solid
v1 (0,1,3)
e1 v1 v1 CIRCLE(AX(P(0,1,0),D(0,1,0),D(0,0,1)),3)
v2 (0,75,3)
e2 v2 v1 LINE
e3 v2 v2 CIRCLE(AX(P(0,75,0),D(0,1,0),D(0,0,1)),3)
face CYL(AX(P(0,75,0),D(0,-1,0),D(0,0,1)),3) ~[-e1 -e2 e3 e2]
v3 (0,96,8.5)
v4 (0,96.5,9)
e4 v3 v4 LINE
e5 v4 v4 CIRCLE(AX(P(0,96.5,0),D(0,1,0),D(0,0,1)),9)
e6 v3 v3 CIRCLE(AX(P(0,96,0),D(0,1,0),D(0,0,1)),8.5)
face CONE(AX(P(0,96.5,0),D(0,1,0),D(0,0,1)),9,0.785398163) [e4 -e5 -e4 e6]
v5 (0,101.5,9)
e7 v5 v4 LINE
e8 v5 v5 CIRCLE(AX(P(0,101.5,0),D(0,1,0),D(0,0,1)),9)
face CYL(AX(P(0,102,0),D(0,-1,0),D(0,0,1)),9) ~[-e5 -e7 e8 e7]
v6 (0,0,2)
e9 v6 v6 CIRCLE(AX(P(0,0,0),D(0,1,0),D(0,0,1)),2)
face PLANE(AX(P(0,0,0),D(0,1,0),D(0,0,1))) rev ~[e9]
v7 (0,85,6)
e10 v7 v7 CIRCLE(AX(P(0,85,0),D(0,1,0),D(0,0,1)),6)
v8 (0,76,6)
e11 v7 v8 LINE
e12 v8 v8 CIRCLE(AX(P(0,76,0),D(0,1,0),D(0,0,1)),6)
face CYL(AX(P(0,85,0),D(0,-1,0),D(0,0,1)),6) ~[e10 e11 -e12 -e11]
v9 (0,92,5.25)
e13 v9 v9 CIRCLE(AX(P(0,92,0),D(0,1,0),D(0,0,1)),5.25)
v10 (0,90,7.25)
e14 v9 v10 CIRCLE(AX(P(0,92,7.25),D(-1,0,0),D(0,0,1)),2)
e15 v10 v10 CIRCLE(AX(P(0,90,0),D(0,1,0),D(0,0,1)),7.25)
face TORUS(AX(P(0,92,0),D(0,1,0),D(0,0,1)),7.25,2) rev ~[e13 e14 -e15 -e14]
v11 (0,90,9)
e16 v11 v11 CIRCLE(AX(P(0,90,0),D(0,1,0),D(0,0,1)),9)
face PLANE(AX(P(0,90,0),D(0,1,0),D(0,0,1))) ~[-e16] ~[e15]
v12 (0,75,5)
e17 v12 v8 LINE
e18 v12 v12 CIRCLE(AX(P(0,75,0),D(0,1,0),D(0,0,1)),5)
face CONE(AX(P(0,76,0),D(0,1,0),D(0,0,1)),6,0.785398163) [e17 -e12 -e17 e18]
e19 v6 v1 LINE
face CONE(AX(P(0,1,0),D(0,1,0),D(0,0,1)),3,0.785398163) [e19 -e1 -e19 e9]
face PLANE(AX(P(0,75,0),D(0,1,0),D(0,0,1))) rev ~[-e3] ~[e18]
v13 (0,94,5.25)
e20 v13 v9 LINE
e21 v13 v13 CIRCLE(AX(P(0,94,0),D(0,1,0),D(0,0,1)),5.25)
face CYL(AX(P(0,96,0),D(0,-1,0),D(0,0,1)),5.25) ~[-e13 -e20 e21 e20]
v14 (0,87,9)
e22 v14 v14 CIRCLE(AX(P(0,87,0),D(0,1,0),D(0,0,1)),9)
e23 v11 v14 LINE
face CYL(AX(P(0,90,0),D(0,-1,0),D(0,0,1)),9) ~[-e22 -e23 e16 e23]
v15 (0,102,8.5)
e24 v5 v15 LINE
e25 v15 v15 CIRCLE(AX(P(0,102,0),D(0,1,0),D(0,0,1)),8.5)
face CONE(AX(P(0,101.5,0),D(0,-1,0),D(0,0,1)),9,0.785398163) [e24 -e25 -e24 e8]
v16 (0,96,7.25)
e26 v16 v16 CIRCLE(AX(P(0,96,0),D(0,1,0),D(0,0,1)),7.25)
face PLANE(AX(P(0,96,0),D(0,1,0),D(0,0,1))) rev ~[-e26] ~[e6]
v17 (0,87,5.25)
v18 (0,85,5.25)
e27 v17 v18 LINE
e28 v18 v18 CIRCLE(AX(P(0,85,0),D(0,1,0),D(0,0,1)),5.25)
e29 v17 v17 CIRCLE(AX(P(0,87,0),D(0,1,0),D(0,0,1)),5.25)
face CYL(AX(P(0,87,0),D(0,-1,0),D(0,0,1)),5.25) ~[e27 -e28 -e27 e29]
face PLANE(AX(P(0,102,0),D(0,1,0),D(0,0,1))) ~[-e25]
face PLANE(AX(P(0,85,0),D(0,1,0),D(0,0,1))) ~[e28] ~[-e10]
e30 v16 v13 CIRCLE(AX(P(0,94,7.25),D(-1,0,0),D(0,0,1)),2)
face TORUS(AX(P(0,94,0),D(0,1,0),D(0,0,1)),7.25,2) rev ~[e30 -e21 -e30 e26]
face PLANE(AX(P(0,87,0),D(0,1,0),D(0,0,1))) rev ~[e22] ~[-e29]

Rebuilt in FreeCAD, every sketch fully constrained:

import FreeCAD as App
import Part
import Sketcher
Q = App.Units.Quantity


def edges_at(feature, points):
    """Names of the edges that pass closest to the given points."""
    edges = feature.Shape.Edges
    near = lambda p: min(range(len(edges)), key=lambda i: edges[i].distToShape(Part.Vertex(*p))[0])
    return sorted({f"Edge{near(p) + 1}" for p in points})


def add_polygon(sketch, points):
    """Adds a closed chain of lines whose ends are joined by coincident constraints."""
    first, n = sketch.GeometryCount, len(points)
    for a, b in zip(points, points[1:] + points[:1]):
        sketch.addGeometry(Part.LineSegment(App.Vector(*a, 0), App.Vector(*b, 0)), False)
    for i in range(n):
        sketch.addConstraint(Sketcher.Constraint("Coincident", first + i, 2, first + (i + 1) % n, 1))

doc = App.newDocument("Part")
body = doc.addObject("PartDesign::Body", "Body")

# Sketch on YZ plane
sketch1 = body.newObject("Sketcher::SketchObject", "Sketch")
sketch1.AttachmentSupport = (doc.getObject("YZ_Plane"), [""])
sketch1.MapMode = "FlatFace"
add_polygon(sketch1, [(0, 3), (0, 0), (102, 0), (102, 9), (96, 9), (96, 5.2), (90, 5.2), (90, 9), (87, 9), (87, 5.2), (85, 5.2), (85, 6), (75, 6), (75, 3)])  # lines 0-13
sketch1.addConstraint([
    Sketcher.Constraint("Vertical", 0),
    Sketcher.Constraint("Horizontal", 1),
    Sketcher.Constraint("Vertical", 2),
    Sketcher.Constraint("Horizontal", 3),
    Sketcher.Constraint("Vertical", 4),
    Sketcher.Constraint("Horizontal", 5),
    Sketcher.Constraint("Vertical", 6),
    Sketcher.Constraint("Horizontal", 7),
    Sketcher.Constraint("Vertical", 8),
    Sketcher.Constraint("Horizontal", 9),
    Sketcher.Constraint("Vertical", 10),
    Sketcher.Constraint("Horizontal", 11),
    Sketcher.Constraint("Vertical", 12),
    Sketcher.Constraint("Horizontal", 13),
    Sketcher.Constraint("Coincident", 0, 2, -1, 1),
    Sketcher.Constraint("Horizontal", 3, 2, 6, 2),
    Sketcher.Constraint("Horizontal", 5, 2, 8, 2),
    Sketcher.Constraint("Equal", 3, 5),
    Sketcher.Constraint("Equal", 7, 0),
    Sketcher.Constraint("Equal", 0, 12),
    Sketcher.Constraint("DistanceX", 3, 2, 3, 1, Q("6 mm")),
    Sketcher.Constraint("DistanceX", 7, 2, 7, 1, Q("3 mm")),
    Sketcher.Constraint("DistanceX", 9, 2, 9, 1, Q("2 mm")),
    Sketcher.Constraint("DistanceX", 11, 2, 11, 1, Q("10 mm")),
    Sketcher.Constraint("DistanceX", 13, 2, 13, 1, Q("75 mm")),
    Sketcher.Constraint("DistanceY", 10, 2, 7, 2, Q("3 mm")),
    Sketcher.Constraint("DistanceY", 4, 2, 4, 1, Q("3.75 mm")),
])
revolution = body.newObject("PartDesign::Revolution", "Revolution")
revolution.Profile = sketch1
revolution.ReferenceAxis = (sketch1, ["H_Axis"])
revolution.Angle = 360
doc.recompute()

chamfer = body.newObject("PartDesign::Chamfer", "Chamfer")
chamfer.Base = (revolution, edges_at(revolution, [(0, 0, -3)]))
chamfer.Size = 1
doc.recompute()

chamfer2 = body.newObject("PartDesign::Chamfer", "Chamfer001")
chamfer2.Base = (chamfer, edges_at(chamfer, [(0, 75, -6)]))
chamfer2.Size = 1
doc.recompute()

chamfer3 = body.newObject("PartDesign::Chamfer", "Chamfer002")
chamfer3.Base = (chamfer2, edges_at(chamfer2, [(0, 102, -9), (0, 96, -9)]))
chamfer3.Size = 0.5
doc.recompute()

fillet = body.newObject("PartDesign::Fillet", "Fillet")
fillet.Base = (chamfer3, edges_at(chamfer3, [(0, 90, -5.25), (0, 96, -5.25)]))
fillet.Radius = 2

doc.recompute()
